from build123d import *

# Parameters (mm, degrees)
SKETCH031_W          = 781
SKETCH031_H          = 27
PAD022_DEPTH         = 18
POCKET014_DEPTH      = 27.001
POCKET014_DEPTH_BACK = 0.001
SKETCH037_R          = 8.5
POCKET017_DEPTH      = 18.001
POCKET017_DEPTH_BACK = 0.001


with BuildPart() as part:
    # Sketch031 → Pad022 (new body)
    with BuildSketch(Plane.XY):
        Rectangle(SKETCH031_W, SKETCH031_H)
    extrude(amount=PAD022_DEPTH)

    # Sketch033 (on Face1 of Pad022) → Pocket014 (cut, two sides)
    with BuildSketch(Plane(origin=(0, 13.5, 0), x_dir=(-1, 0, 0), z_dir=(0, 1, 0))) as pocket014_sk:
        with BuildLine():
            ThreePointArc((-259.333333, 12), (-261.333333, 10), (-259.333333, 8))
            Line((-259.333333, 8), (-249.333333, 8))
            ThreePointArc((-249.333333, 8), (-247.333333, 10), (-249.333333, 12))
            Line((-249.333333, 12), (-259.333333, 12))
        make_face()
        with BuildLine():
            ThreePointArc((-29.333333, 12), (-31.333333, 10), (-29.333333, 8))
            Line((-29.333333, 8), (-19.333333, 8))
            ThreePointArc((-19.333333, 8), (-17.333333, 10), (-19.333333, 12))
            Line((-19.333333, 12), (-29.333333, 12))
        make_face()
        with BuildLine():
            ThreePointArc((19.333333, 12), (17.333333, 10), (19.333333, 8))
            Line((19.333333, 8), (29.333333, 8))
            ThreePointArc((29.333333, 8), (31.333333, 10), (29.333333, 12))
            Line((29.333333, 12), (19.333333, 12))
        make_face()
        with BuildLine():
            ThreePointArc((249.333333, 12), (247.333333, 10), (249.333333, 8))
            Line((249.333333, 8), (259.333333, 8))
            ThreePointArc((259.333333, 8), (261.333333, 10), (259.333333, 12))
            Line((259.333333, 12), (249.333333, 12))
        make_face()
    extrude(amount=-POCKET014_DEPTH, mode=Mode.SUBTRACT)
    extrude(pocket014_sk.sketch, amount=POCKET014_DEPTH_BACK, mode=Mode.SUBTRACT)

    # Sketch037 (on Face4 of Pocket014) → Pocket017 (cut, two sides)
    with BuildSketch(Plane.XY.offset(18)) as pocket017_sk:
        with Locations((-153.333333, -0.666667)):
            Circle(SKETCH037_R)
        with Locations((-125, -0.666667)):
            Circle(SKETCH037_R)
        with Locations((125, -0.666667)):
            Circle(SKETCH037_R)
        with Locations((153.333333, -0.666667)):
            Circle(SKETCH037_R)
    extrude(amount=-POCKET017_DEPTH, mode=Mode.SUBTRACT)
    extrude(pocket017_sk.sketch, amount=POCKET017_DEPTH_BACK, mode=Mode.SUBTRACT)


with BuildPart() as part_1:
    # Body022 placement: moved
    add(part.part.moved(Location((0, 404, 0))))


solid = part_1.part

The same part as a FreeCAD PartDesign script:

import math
import FreeCAD as App
import Part
import Sketcher

V = App.Vector


def add_polygon(sketch, points):
    """Adds a closed chain of lines whose ends are joined by coincident constraints."""
    first, n = sketch.GeometryCount, len(points)
    for a, b in zip(points, points[1:] + points[:1]):
        sketch.addGeometry(Part.LineSegment(App.Vector(*a, 0), App.Vector(*b, 0)), False)
    for i in range(n):
        sketch.addConstraint(Sketcher.Constraint("Coincident", first + i, 2, first + (i + 1) % n, 1))

doc = App.newDocument("Part")
params = doc.addObject("Spreadsheet::Sheet", "Params")
for row, (alias, value) in enumerate([
    ("sketch1_width", "781 mm"),
    ("sketch1_height", "27 mm"),
    ("pad1_length", "18 mm"),
    ("sketch2_radius", "2 mm"),
    ("sketch2_width", "10 mm"),
    ("sketch3_diameter", "17 mm"),
], start=1):
    params.set(f"A{row}", alias)
    params.set(f"B{row}", "=" + value)
    params.setAlias(f"B{row}", alias)

body = doc.addObject("PartDesign::Body", "Body")

sketch1 = body.newObject("Sketcher::SketchObject", "Sketch")
sketch1.AttachmentSupport = (doc.getObject("XY_Plane"), [""])
sketch1.MapMode = "FlatFace"
add_polygon(sketch1, [(-390, 14), (-390, -14), (390, -14), (390, 14)])
sketch1.addConstraint([
    Sketcher.Constraint("Vertical", 0),
    Sketcher.Constraint("Horizontal", 1),
    Sketcher.Constraint("Vertical", 2),
    Sketcher.Constraint("Horizontal", 3),
    Sketcher.Constraint("Symmetric", 0, 2, 2, 2, -1, 1),
    Sketcher.Constraint("DistanceX", 1, 1, 1, 2, 781.0),
    Sketcher.Constraint("DistanceY", 0, 2, 0, 1, 27.0),
])
sketch1.setExpression("Constraints[9]", "Params.sketch1_width")
sketch1.setExpression("Constraints[10]", "Params.sketch1_height")
pad1 = body.newObject("PartDesign::Pad", "Pad")
pad1.Profile = sketch1
pad1.setExpression("Length", "Params.pad1_length")

sketch2 = body.newObject("Sketcher::SketchObject", "Sketch001")
sketch2.AttachmentSupport = (doc.getObject("XZ_Plane"), [""])
sketch2.MapMode = "FlatFace"
sketch2.AttachmentOffset = App.Placement(V(0, 0, -13.5), App.Rotation())
sketch2.addGeometry([
    Part.ArcOfCircle(Part.Circle(V(259.3, 10, 0), V(0, 0, 1), 2), math.radians(-90), math.radians(90)),
    Part.LineSegment(V(259.3, 8, 0), V(249.3, 8, 0)),
    Part.ArcOfCircle(Part.Circle(V(249.3, 10, 0), V(0, 0, 1), 2), math.radians(90), math.radians(270)),
    Part.LineSegment(V(249.3, 12, 0), V(259.3, 12, 0)),
    Part.ArcOfCircle(Part.Circle(V(29.3, 10, 0), V(0, 0, 1), 2), math.radians(-90), math.radians(90)),
    Part.LineSegment(V(29.3, 8, 0), V(19.3, 8, 0)),
    Part.ArcOfCircle(Part.Circle(V(19.3, 10, 0), V(0, 0, 1), 2), math.radians(90), math.radians(270)),
    Part.LineSegment(V(19.3, 12, 0), V(29.3, 12, 0)),
    Part.ArcOfCircle(Part.Circle(V(-19.3, 10, 0), V(0, 0, 1), 2), math.radians(-90), math.radians(90)),
    Part.LineSegment(V(-19.3, 8, 0), V(-29.3, 8, 0)),
    Part.ArcOfCircle(Part.Circle(V(-29.3, 10, 0), V(0, 0, 1), 2), math.radians(90), math.radians(270)),
    Part.LineSegment(V(-29.3, 12, 0), V(-19.3, 12, 0)),
    Part.ArcOfCircle(Part.Circle(V(-249.3, 10, 0), V(0, 0, 1), 2), math.radians(-90), math.radians(90)),
    Part.LineSegment(V(-249.3, 8, 0), V(-259.3, 8, 0)),
    Part.ArcOfCircle(Part.Circle(V(-259.3, 10, 0), V(0, 0, 1), 2), math.radians(90), math.radians(270)),
    Part.LineSegment(V(-259.3, 12, 0), V(-249.3, 12, 0)),
], False)
sketch2.addConstraint([
    Sketcher.Constraint("Tangent", 0, 1, 1, 1),
    Sketcher.Constraint("Tangent", 1, 2, 2, 2),
    Sketcher.Constraint("Tangent", 2, 1, 3, 1),
    Sketcher.Constraint("Tangent", 3, 2, 0, 2),
    Sketcher.Constraint("Tangent", 4, 1, 5, 1),
    Sketcher.Constraint("Tangent", 5, 2, 6, 2),
    Sketcher.Constraint("Tangent", 6, 1, 7, 1),
    Sketcher.Constraint("Tangent", 7, 2, 4, 2),
    Sketcher.Constraint("Tangent", 8, 1, 9, 1),
    Sketcher.Constraint("Tangent", 9, 2, 10, 2),
    Sketcher.Constraint("Tangent", 10, 1, 11, 1),
    Sketcher.Constraint("Tangent", 11, 2, 8, 2),
    Sketcher.Constraint("Tangent", 12, 1, 13, 1),
    Sketcher.Constraint("Tangent", 13, 2, 14, 2),
    Sketcher.Constraint("Tangent", 14, 1, 15, 1),
    Sketcher.Constraint("Tangent", 15, 2, 12, 2),
    Sketcher.Constraint("Horizontal", 1),
    Sketcher.Constraint("Horizontal", 3),
    Sketcher.Constraint("Horizontal", 5),
    Sketcher.Constraint("Horizontal", 7),
    Sketcher.Constraint("Horizontal", 9),
    Sketcher.Constraint("Horizontal", 11),
    Sketcher.Constraint("Horizontal", 13),
    Sketcher.Constraint("Horizontal", 15),
    Sketcher.Constraint("Equal", 2, 4),
    Sketcher.Constraint("Equal", 6, 8),
    Sketcher.Constraint("Equal", 10, 12),
    Sketcher.Constraint("Symmetric", 6, 3, 8, 3, -2),
    Sketcher.Constraint("Symmetric", 2, 3, 12, 3, -2),
    Sketcher.Constraint("Horizontal", 2, 3, 4, 3),
    Sketcher.Constraint("Equal", 3, 5),
    Sketcher.Constraint("Equal", 7, 9),
    Sketcher.Constraint("Equal", 11, 13),
    Sketcher.Constraint("Radius", 0, 2.0),
    Sketcher.Constraint("DistanceX", 1, 2, 1, 1, 10.0),
    Sketcher.Constraint("DistanceY", -1, 1, 0, 3, 10.0),
    Sketcher.Constraint("DistanceX", 4, 3, 2, 3, 220.0),
    Sketcher.Constraint("DistanceX", -1, 1, 0, 3, 259.333333),
])
sketch2.setExpression("Constraints[33]", "Params.sketch2_radius")
sketch2.setExpression("Constraints[34]", "Params.sketch2_width")
pocket1 = body.newObject("PartDesign::Pocket", "Pocket")
pocket1.Profile = sketch2
pocket1.Type = "ThroughAll"
pocket1.Midplane = True

sketch3 = body.newObject("Sketcher::SketchObject", "Sketch002")
sketch3.AttachmentSupport = (doc.getObject("XY_Plane"), [""])
sketch3.MapMode = "FlatFace"
sketch3.AttachmentOffset = App.Placement(V(0, 0, 18), App.Rotation())
sketch3.addGeometry([
    Part.Circle(V(-153, -1, 0), V(0, 0, 1), 8),
    Part.Circle(V(-125, -1, 0), V(0, 0, 1), 8),
    Part.Circle(V(125, -1, 0), V(0, 0, 1), 8),
    Part.Circle(V(153, -1, 0), V(0, 0, 1), 8),
], False)
sketch3.addConstraint([
    Sketcher.Constraint("Equal", 0, 1),
    Sketcher.Constraint("Equal", 1, 2),
    Sketcher.Constraint("Equal", 2, 3),
    Sketcher.Constraint("Symmetric", 1, 3, 2, 3, -2),
    Sketcher.Constraint("Symmetric", 0, 3, 3, 3, -2),
    Sketcher.Constraint("Horizontal", 0, 3, 1, 3),
    Sketcher.Constraint("Diameter", 0, 17.0),
    Sketcher.Constraint("DistanceX", 1, 3, -1, 1, 125.0),
    Sketcher.Constraint("DistanceX", 0, 3, -1, 1, 153.333333),
    Sketcher.Constraint("DistanceY", 0, 3, -1, 1, 0.666667),
])
sketch3.setExpression("Constraints[6]", "Params.sketch3_diameter")
pocket2 = body.newObject("PartDesign::Pocket", "Pocket001")
pocket2.Profile = sketch3
pocket2.Type = "ThroughAll"
pocket2.Midplane = True
body2 = doc.addObject("PartDesign::Body", "Body001")
doc.recompute()

body.Placement = App.Placement(V(0, 404, 0), App.Rotation(V(0, 0, 1), 0))
boolean = body2.newObject("PartDesign::Boolean", "Boolean")
boolean.Type = "Fuse"
boolean.addObjects([body])

doc.recompute()
